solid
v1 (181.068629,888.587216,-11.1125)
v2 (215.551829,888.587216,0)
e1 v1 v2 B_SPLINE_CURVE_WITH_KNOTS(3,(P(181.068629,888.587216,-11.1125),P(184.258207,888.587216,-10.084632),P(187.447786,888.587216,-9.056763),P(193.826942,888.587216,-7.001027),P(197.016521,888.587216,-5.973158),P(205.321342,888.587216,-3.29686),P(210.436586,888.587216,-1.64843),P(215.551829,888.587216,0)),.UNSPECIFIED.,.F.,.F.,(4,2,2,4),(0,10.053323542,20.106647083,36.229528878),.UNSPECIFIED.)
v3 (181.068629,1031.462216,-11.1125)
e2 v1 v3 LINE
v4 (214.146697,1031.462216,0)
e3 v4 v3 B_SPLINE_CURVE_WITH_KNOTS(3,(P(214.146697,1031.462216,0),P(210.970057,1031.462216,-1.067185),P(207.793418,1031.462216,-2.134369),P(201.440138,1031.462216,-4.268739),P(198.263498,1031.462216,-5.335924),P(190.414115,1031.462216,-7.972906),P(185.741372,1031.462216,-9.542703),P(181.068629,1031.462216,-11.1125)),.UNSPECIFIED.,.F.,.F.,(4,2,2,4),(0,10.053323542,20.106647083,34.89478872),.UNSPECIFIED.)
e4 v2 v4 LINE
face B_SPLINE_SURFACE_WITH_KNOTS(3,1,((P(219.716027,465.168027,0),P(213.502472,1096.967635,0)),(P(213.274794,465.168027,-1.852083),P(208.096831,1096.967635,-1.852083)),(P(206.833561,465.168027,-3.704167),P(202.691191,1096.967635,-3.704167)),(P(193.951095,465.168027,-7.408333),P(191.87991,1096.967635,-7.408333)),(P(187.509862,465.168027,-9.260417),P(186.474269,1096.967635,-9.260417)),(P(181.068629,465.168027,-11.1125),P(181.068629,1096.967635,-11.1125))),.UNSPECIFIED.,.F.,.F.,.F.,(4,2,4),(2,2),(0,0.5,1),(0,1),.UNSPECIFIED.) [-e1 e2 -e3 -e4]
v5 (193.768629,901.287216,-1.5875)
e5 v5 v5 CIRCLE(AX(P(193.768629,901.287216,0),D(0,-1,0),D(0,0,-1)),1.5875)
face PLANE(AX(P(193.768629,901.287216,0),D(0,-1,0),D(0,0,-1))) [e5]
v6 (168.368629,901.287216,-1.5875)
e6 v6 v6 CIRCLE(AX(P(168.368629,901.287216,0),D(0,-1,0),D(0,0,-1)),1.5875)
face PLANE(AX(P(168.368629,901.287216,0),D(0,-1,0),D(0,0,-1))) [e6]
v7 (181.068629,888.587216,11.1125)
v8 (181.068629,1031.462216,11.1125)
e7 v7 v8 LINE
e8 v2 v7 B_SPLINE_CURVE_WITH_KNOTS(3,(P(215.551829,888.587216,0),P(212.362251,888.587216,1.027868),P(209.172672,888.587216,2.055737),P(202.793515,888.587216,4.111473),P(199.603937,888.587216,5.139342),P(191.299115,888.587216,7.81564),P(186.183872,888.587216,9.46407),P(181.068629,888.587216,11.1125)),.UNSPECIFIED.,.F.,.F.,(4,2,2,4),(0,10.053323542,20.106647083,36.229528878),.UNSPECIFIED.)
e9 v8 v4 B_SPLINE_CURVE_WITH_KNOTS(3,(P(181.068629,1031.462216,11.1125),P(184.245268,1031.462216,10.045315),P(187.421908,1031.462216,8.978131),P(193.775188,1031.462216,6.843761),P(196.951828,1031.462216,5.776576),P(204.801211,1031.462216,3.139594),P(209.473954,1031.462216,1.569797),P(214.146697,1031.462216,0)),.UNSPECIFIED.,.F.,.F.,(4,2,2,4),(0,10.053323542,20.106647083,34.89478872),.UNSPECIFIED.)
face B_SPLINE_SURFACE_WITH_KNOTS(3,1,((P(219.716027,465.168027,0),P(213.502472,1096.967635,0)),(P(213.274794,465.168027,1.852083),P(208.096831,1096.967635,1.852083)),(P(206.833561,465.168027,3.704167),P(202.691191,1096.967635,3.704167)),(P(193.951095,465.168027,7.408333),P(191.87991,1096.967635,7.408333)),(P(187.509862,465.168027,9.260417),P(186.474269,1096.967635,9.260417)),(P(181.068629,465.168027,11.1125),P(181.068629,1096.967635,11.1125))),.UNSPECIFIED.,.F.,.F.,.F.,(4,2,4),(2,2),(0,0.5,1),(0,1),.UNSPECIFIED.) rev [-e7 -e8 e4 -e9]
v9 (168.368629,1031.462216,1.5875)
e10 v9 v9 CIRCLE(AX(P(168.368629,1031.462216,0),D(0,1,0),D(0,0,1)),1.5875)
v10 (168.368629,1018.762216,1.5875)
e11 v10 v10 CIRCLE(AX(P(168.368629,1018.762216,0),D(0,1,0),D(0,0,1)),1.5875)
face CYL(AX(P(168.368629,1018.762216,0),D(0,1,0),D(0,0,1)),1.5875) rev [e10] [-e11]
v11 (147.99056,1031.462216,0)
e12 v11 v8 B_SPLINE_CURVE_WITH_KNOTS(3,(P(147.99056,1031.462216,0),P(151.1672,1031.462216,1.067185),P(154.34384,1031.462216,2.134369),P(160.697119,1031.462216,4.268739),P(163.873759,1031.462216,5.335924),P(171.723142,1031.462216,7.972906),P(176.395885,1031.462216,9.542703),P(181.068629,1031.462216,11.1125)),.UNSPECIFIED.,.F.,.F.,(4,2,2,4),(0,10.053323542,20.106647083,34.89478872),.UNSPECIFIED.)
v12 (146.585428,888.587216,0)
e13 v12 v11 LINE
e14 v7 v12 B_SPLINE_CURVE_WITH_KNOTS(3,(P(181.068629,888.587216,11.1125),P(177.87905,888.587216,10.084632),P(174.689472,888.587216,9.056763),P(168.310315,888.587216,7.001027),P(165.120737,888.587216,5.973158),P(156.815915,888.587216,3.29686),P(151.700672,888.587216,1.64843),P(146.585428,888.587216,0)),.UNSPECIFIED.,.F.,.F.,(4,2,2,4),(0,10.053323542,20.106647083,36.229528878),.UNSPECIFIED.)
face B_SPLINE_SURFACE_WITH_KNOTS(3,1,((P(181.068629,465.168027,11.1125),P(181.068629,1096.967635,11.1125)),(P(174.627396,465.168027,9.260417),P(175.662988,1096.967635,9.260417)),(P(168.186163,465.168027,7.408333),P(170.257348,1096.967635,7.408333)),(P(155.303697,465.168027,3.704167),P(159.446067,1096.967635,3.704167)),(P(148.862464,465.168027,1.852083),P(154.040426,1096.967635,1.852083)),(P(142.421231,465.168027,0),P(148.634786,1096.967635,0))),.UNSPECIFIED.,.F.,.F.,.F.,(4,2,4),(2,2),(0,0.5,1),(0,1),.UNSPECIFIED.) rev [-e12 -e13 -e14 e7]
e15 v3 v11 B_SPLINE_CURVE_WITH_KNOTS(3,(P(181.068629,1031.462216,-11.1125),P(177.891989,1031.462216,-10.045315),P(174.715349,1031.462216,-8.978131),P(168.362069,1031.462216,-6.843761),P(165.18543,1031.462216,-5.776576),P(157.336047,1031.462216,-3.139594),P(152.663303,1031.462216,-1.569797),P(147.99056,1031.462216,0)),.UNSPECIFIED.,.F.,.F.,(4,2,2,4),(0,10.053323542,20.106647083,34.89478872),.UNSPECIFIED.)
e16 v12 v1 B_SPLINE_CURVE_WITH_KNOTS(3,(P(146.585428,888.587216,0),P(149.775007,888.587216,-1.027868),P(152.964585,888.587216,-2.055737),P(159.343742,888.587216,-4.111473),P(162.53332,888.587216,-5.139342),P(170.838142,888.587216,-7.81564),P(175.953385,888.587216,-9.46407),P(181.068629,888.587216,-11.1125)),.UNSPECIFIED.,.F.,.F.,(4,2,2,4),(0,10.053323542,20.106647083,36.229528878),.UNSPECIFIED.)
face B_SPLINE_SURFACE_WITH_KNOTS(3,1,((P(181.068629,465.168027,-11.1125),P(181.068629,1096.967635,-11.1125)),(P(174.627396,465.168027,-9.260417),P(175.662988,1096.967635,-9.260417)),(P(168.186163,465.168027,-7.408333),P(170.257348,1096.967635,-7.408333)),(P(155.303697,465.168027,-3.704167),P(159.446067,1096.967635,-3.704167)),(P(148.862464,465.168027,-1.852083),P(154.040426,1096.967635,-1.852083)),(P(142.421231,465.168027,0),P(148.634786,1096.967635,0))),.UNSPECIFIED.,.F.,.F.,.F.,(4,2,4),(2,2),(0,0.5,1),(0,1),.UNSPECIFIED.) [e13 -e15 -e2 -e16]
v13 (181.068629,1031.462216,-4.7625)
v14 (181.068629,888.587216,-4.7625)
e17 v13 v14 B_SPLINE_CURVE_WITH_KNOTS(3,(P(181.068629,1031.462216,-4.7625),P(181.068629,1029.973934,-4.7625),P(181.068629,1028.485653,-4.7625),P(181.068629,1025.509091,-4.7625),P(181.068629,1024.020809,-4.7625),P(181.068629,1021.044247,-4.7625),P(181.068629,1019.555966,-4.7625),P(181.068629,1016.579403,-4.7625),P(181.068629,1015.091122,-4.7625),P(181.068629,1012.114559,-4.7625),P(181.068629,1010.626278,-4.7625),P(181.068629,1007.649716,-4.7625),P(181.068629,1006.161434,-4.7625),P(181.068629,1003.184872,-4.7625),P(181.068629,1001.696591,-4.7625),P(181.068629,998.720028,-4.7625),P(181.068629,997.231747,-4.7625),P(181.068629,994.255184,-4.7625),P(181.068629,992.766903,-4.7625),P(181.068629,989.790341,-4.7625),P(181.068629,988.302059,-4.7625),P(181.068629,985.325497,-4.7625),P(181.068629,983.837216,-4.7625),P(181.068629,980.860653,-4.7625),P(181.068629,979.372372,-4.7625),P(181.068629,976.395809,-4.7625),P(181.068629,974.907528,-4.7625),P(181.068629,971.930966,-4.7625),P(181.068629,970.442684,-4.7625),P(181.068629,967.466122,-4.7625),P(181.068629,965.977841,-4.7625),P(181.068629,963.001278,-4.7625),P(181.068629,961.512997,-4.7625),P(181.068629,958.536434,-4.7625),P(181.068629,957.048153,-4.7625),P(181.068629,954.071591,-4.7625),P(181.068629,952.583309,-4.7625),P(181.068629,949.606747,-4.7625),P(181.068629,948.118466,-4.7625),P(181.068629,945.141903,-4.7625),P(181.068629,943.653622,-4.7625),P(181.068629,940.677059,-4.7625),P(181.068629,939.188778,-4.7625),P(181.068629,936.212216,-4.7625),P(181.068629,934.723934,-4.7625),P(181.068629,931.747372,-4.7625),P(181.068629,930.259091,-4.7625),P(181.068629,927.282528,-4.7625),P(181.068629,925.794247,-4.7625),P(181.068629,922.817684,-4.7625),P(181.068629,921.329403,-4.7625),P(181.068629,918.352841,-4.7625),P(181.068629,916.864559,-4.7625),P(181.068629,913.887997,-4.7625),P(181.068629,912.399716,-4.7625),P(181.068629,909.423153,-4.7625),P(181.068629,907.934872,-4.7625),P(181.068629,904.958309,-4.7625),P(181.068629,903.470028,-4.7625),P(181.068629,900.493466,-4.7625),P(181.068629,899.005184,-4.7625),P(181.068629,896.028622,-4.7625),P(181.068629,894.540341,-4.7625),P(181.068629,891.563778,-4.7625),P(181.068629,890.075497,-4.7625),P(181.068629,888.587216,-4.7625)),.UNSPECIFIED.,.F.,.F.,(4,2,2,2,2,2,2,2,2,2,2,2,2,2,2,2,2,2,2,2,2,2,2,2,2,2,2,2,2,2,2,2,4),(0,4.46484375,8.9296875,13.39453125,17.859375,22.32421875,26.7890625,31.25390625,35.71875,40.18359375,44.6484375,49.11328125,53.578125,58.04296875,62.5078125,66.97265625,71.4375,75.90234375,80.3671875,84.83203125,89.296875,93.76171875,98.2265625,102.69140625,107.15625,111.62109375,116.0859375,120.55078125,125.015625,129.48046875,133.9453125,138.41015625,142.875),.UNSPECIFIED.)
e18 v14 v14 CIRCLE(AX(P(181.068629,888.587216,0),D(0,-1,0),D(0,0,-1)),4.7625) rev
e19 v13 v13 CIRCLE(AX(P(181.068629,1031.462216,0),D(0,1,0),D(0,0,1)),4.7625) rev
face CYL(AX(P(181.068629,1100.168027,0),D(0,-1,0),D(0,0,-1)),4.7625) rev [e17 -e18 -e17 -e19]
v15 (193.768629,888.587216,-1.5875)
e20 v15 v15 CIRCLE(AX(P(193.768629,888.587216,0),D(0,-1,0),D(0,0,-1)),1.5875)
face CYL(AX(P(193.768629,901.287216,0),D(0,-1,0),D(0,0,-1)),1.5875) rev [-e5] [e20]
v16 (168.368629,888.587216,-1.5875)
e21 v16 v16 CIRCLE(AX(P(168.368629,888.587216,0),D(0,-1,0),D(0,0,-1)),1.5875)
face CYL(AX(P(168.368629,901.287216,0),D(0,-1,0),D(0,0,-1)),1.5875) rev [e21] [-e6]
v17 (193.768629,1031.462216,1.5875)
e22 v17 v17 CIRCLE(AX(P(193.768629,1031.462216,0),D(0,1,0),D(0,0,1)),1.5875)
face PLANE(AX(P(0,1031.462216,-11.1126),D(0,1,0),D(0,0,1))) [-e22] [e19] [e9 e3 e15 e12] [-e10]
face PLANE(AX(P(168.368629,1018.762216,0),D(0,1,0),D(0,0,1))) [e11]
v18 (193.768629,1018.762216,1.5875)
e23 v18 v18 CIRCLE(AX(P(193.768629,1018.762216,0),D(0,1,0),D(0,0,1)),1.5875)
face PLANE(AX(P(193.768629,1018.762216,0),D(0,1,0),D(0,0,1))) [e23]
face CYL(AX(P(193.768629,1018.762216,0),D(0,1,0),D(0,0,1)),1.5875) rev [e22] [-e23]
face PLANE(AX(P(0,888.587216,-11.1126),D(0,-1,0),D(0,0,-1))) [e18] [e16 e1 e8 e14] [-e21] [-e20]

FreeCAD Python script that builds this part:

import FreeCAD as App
import Part
import Sketcher
from FreeCAD import Vector
Q = App.Units.Quantity


def add_polygon(sketch, points):
    """Adds a closed chain of lines whose ends are joined by coincident constraints."""
    first, n = sketch.GeometryCount, len(points)
    for a, b in zip(points, points[1:] + points[:1]):
        sketch.addGeometry(Part.LineSegment(App.Vector(*a, 0), App.Vector(*b, 0)), False)
    for i in range(n):
        sketch.addConstraint(Sketcher.Constraint("Coincident", first + i, 2, first + (i + 1) % n, 1))

doc = App.newDocument("Part")
body = doc.addObject("PartDesign::Body", "Body")

# Sketch on XY plane
sketch1 = body.newObject("Sketcher::SketchObject", "Sketch")
sketch1.AttachmentSupport = (doc.getObject("XY_Plane"), [""])
sketch1.MapMode = "FlatFace"
add_polygon(sketch1, [(142, 465), (220, 465), (214, 1097), (181, 1174), (149, 1097)])  # lines 0-4
sketch1.addConstraint(Sketcher.Constraint("Horizontal", 0))
sketch1.addConstraint(Sketcher.Constraint("Horizontal", 1, 2, 3, 2))
sketch1.addConstraint(Sketcher.Constraint("Equal", 2, 3))
sketch1.addConstraint(Sketcher.Constraint("Equal", 1, 4))
sketch1.addConstraint(Sketcher.Constraint("Distance", 1, 631.830161))
sketch1.addConstraint(Sketcher.Constraint("DistanceX", 0, 1, 0, 2, 77.294796))
sketch1.addConstraint(Sketcher.Constraint("DistanceX", -1, 1, 1, 2, 213.502472))
sketch1.addConstraint(Sketcher.Constraint("DistanceX", -1, 1, 2, 2, 181.068629))
sketch1.addConstraint(Sketcher.Constraint("DistanceY", 1, 2, 2, 2, 77.369581))
sketch1.addConstraint(Sketcher.Constraint("DistanceY", -1, 1, 0, 2, 465.168027))
pad1 = body.newObject("PartDesign::Pad", "Pad")
pad1.Profile = sketch1
pad1.Type = "TwoLengths"
pad1.Length = Q("0.4375 in")
pad1.Length2 = Q("0.4375 in")

# Sketch on XZ plane
sketch2 = body.newObject("Sketcher::SketchObject", "Sketch001")
sketch2.AttachmentSupport = (doc.getObject("XZ_Plane"), [""])
sketch2.MapMode = "FlatFace"
sketch2.AttachmentOffset = App.Placement(Vector(0, 0, -465.168027), App.Rotation())
add_polygon(sketch2, [(142.4, 0), (181.1, 11.1), (219.7, 0), (222.7, 0), (222.7, 15.3), (137.8, 15.3), (137.8, 0)])  # lines 0-6
sketch2.addConstraint(Sketcher.Constraint("Horizontal", 2))
sketch2.addConstraint(Sketcher.Constraint("Vertical", 3))
sketch2.addConstraint(Sketcher.Constraint("Horizontal", 4))
sketch2.addConstraint(Sketcher.Constraint("Vertical", 5))
sketch2.addConstraint(Sketcher.Constraint("Horizontal", 6))
sketch2.addConstraint(Sketcher.Constraint("PointOnObject", 1, 2, -1))
sketch2.addConstraint(Sketcher.Constraint("PointOnObject", 5, 2, -1))
sketch2.addConstraint(Sketcher.Constraint("Equal", 0, 1))
sketch2.addConstraint(Sketcher.Constraint("DistanceY", -1, 1, 0, 2, Q("0.4375 in")))
sketch2.addConstraint(Sketcher.Constraint("DistanceX", 2, 1, 2, 2, 2.989111))
sketch2.addConstraint(Sketcher.Constraint("DistanceX", 4, 2, 4, 1, 84.85651))
sketch2.addConstraint(Sketcher.Constraint("DistanceX", 4, 2, 0, 2, 43.22))
sketch2.addConstraint(Sketcher.Constraint("DistanceY", 3, 1, 3, 2, 15.258366))
sketch2.addConstraint(Sketcher.Constraint("DistanceX", -1, 1, 0, 2, 181.068629))

# Sketch on XZ plane
sketch3 = body.newObject("Sketcher::SketchObject", "Sketch002")
sketch3.AttachmentSupport = (doc.getObject("XZ_Plane"), [""])
sketch3.MapMode = "FlatFace"
sketch3.AttachmentOffset = App.Placement(Vector(0, 0, -1096.967635), App.Rotation())
add_polygon(sketch3, [(214, 0), (181, 11), (149, 0), (138, 0), (138, 15), (223, 15), (223, 0)])  # lines 0-6
sketch3.addConstraint(Sketcher.Constraint("Horizontal", 2))
sketch3.addConstraint(Sketcher.Constraint("Vertical", 3))
sketch3.addConstraint(Sketcher.Constraint("Horizontal", 4))
sketch3.addConstraint(Sketcher.Constraint("Vertical", 5))
sketch3.addConstraint(Sketcher.Constraint("Horizontal", 6))
sketch3.addConstraint(Sketcher.Constraint("PointOnObject", 1, 2, -1))
sketch3.addConstraint(Sketcher.Constraint("PointOnObject", 5, 2, -1))
sketch3.addConstraint(Sketcher.Constraint("Equal", 0, 1))
sketch3.addConstraint(Sketcher.Constraint("DistanceY", -1, 1, 0, 2, Q("0.4375 in")))
sketch3.addConstraint(Sketcher.Constraint("DistanceX", 4, 1, 4, 2, 84.85651))
sketch3.addConstraint(Sketcher.Constraint("DistanceX", 2, 2, 0, 2, 43.22))
sketch3.addConstraint(Sketcher.Constraint("DistanceX", 2, 2, 2, 1, 10.786158))
sketch3.addConstraint(Sketcher.Constraint("DistanceY", 3, 1, 3, 2, 15.258366))
sketch3.addConstraint(Sketcher.Constraint("DistanceX", -1, 1, 0, 2, 181.068629))

subtractiveloft = body.newObject("PartDesign::SubtractiveLoft", "SubtractiveLoft")
subtractiveloft.Profile = sketch2
subtractiveloft.Sections = [sketch3]
doc.recompute()

mirrored = body.newObject("PartDesign::Mirrored", "Mirrored")
mirrored.Originals = [subtractiveloft]
mirrored.MirrorPlane = (doc.getObject("XY_Plane"), [""])
body.Tip = mirrored

# Sketch on an angled plane
sketch4 = body.newObject("Sketcher::SketchObject", "Sketch003")
sketch4.Placement = App.Placement(Vector(-32.103098, 13.457832, 93.698704), App.Rotation(Vector(0.9470206, 0.045661094, 0.317910438), Vector(0, 0.989842276, -0.142169857), Vector(-0.321172823, 0.134637783, 0.937401027), "ZXY"))
add_polygon(sketch4, [(164, 1281), (164, 998), (274, 998), (274, 1281)])  # lines 0-3
sketch4.addConstraint(Sketcher.Constraint("Vertical", 0))
sketch4.addConstraint(Sketcher.Constraint("Horizontal", 1))
sketch4.addConstraint(Sketcher.Constraint("Vertical", 2))
sketch4.addConstraint(Sketcher.Constraint("Horizontal", 3))
sketch4.addConstraint(Sketcher.Constraint("DistanceX", 1, 1, 1, 2, 109.877469))
sketch4.addConstraint(Sketcher.Constraint("DistanceY", 0, 2, 0, 1, 283.051122))
sketch4.addConstraint(Sketcher.Constraint("DistanceX", -1, 1, 0, 2, 164.41051))
sketch4.addConstraint(Sketcher.Constraint("DistanceY", -1, 1, 0, 2, 997.778163))
pocket1 = body.newObject("PartDesign::Pocket", "Pocket")
pocket1.Profile = sketch4
pocket1.Type = "ThroughAll"
pocket1.Reversed = True

# Sketch on an angled plane
sketch5 = body.newObject("Sketcher::SketchObject", "Sketch004")
sketch5.Placement = App.Placement(Vector(69.458274, 29.117371, 202.726548), App.Rotation(Vector(0.9470206, -0.045661094, -0.317910438), Vector(0, 0.989842276, -0.142169857), Vector(0.321172823, 0.134637783, 0.937401027), "ZXY"))
add_polygon(sketch5, [(57, 1173), (57, 1064), (206, 1064), (206, 1173)])  # lines 0-3
sketch5.addConstraint(Sketcher.Constraint("Vertical", 0))
sketch5.addConstraint(Sketcher.Constraint("Horizontal", 1))
sketch5.addConstraint(Sketcher.Constraint("Vertical", 2))
sketch5.addConstraint(Sketcher.Constraint("Horizontal", 3))
sketch5.addConstraint(Sketcher.Constraint("DistanceY", 0, 2, 0, 1, 108.921762))
sketch5.addConstraint(Sketcher.Constraint("DistanceX", 1, 1, 1, 2, 149.121483))
sketch5.addConstraint(Sketcher.Constraint("DistanceY", -1, 1, 0, 2, 1064.46137))
sketch5.addConstraint(Sketcher.Constraint("DistanceX", -1, 1, 1, 2, 206.313558))
pocket2 = body.newObject("PartDesign::Pocket", "Pocket001")
pocket2.Profile = sketch5
pocket2.Type = "ThroughAll"
pocket2.Reversed = True
doc.recompute()

mirrored2 = body.newObject("PartDesign::Mirrored", "Mirrored001")
mirrored2.Originals = [pocket1, pocket2]
mirrored2.MirrorPlane = (doc.getObject("XY_Plane"), [""])
body.Tip = mirrored2

# Sketch on XZ plane
sketch6 = body.newObject("Sketcher::SketchObject", "Sketch005")
sketch6.AttachmentSupport = (doc.getObject("XZ_Plane"), [""])
sketch6.MapMode = "FlatFace"
sketch6.AttachmentOffset = App.Placement(Vector(0, 0, -465.168027), App.Rotation())
sketch6.addGeometry(Part.Circle(Vector(181.1, 0, 0), Vector(0, 0, 1), 4.8), False)
sketch6.addConstraint(Sketcher.Constraint("PointOnObject", 0, 3, -1))
sketch6.addConstraint(Sketcher.Constraint("Diameter", 0, Q("0.375 in")))
sketch6.addConstraint(Sketcher.Constraint("DistanceX", -1, 1, 0, 3, 181.068629))
pocket3 = body.newObject("PartDesign::Pocket", "Pocket002")
pocket3.Profile = sketch6
pocket3.Length = Q("25 in")

# Sketch on XY plane
sketch7 = body.newObject("Sketcher::SketchObject", "Sketch006")
sketch7.AttachmentSupport = (doc.getObject("XY_Plane"), [""])
sketch7.MapMode = "FlatFace"
add_polygon(sketch7, [(106, 454), (255, 454), (255, 889), (106, 889)])  # lines 0-3
add_polygon(sketch7, [(106, 1208), (106, 1031), (255, 1031), (255, 1208)])  # lines 4-7
sketch7.addConstraint(Sketcher.Constraint("Horizontal", 0))
sketch7.addConstraint(Sketcher.Constraint("Vertical", 1))
sketch7.addConstraint(Sketcher.Constraint("Horizontal", 2))
sketch7.addConstraint(Sketcher.Constraint("Vertical", 3))
sketch7.addConstraint(Sketcher.Constraint("Vertical", 4))
sketch7.addConstraint(Sketcher.Constraint("Horizontal", 5))
sketch7.addConstraint(Sketcher.Constraint("Vertical", 6))
sketch7.addConstraint(Sketcher.Constraint("Horizontal", 7))
sketch7.addConstraint(Sketcher.Constraint("Vertical", 3, 2, 4, 2))
sketch7.addConstraint(Sketcher.Constraint("Vertical", 1, 2, 5, 2))
sketch7.addConstraint(Sketcher.Constraint("DistanceY", 2, 2, 4, 2, Q("5.625 in")))
sketch7.addConstraint(Sketcher.Constraint("DistanceX", 0, 1, 0, 2, 149.77475))
sketch7.addConstraint(Sketcher.Constraint("DistanceY", 1, 1, 1, 2, 434.582771))
sketch7.addConstraint(Sketcher.Constraint("DistanceY", 4, 2, 4, 1, 176.125879))
sketch7.addConstraint(Sketcher.Constraint("DistanceX", -1, 1, 0, 2, 255.485014))
sketch7.addConstraint(Sketcher.Constraint("DistanceY", -1, 1, 0, 2, 454.004445))
pocket4 = body.newObject("PartDesign::Pocket", "Pocket003")
pocket4.Profile = sketch7
pocket4.Type = "ThroughAll"
pocket4.Midplane = True

# Sketch on XZ plane
sketch8 = body.newObject("Sketcher::SketchObject", "Sketch007")
sketch8.AttachmentSupport = (doc.getObject("XZ_Plane"), [""])
sketch8.MapMode = "FlatFace"
sketch8.AttachmentOffset = App.Placement(Vector(0, 0, -888.587216), App.Rotation())
sketch8.addGeometry(Part.Circle(Vector(168.4, 0, 0), Vector(0, 0, 1), 1.6), False)
sketch8.addGeometry(Part.Circle(Vector(193.8, 0, 0), Vector(0, 0, 1), 1.6), False)
sketch8.addConstraint(Sketcher.Constraint("Equal", 0, 1))
sketch8.addConstraint(Sketcher.Constraint("PointOnObject", 0, 3, -1))
sketch8.addConstraint(Sketcher.Constraint("PointOnObject", 1, 3, -1))
sketch8.addConstraint(Sketcher.Constraint("Diameter", 0, Q("0.125 in")))
sketch8.addConstraint(Sketcher.Constraint("DistanceX", 0, 3, 1, 3, Q("1 in")))
sketch8.addConstraint(Sketcher.Constraint("DistanceX", -1, 1, 0, 3, 168.368629))
pocket5 = body.newObject("PartDesign::Pocket", "Pocket004")
pocket5.Profile = sketch8
pocket5.Length = Q("0.5 in")

# Sketch on XZ plane
sketch9 = body.newObject("Sketcher::SketchObject", "Sketch008")
sketch9.AttachmentSupport = (doc.getObject("XZ_Plane"), [""])
sketch9.MapMode = "FlatFace"
sketch9.AttachmentOffset = App.Placement(Vector(0, 0, -1018.762216), App.Rotation())
sketch9.addGeometry(Part.Circle(Vector(168.4, 0, 0), Vector(0, 0, 1), 1.6), False)
sketch9.addGeometry(Part.Circle(Vector(193.8, 0, 0), Vector(0, 0, 1), 1.6), False)
sketch9.addConstraint(Sketcher.Constraint("Equal", 0, 1))
sketch9.addConstraint(Sketcher.Constraint("PointOnObject", 0, 3, -1))
sketch9.addConstraint(Sketcher.Constraint("PointOnObject", 1, 3, -1))
sketch9.addConstraint(Sketcher.Constraint("Diameter", 0, Q("0.125 in")))
sketch9.addConstraint(Sketcher.Constraint("DistanceX", 0, 3, 1, 3, Q("1 in")))
sketch9.addConstraint(Sketcher.Constraint("DistanceX", -1, 1, 0, 3, 168.368629))
pocket6 = body.newObject("PartDesign::Pocket", "Pocket005")
pocket6.Profile = sketch9
pocket6.Length = Q("0.5 in")

doc.recompute()
